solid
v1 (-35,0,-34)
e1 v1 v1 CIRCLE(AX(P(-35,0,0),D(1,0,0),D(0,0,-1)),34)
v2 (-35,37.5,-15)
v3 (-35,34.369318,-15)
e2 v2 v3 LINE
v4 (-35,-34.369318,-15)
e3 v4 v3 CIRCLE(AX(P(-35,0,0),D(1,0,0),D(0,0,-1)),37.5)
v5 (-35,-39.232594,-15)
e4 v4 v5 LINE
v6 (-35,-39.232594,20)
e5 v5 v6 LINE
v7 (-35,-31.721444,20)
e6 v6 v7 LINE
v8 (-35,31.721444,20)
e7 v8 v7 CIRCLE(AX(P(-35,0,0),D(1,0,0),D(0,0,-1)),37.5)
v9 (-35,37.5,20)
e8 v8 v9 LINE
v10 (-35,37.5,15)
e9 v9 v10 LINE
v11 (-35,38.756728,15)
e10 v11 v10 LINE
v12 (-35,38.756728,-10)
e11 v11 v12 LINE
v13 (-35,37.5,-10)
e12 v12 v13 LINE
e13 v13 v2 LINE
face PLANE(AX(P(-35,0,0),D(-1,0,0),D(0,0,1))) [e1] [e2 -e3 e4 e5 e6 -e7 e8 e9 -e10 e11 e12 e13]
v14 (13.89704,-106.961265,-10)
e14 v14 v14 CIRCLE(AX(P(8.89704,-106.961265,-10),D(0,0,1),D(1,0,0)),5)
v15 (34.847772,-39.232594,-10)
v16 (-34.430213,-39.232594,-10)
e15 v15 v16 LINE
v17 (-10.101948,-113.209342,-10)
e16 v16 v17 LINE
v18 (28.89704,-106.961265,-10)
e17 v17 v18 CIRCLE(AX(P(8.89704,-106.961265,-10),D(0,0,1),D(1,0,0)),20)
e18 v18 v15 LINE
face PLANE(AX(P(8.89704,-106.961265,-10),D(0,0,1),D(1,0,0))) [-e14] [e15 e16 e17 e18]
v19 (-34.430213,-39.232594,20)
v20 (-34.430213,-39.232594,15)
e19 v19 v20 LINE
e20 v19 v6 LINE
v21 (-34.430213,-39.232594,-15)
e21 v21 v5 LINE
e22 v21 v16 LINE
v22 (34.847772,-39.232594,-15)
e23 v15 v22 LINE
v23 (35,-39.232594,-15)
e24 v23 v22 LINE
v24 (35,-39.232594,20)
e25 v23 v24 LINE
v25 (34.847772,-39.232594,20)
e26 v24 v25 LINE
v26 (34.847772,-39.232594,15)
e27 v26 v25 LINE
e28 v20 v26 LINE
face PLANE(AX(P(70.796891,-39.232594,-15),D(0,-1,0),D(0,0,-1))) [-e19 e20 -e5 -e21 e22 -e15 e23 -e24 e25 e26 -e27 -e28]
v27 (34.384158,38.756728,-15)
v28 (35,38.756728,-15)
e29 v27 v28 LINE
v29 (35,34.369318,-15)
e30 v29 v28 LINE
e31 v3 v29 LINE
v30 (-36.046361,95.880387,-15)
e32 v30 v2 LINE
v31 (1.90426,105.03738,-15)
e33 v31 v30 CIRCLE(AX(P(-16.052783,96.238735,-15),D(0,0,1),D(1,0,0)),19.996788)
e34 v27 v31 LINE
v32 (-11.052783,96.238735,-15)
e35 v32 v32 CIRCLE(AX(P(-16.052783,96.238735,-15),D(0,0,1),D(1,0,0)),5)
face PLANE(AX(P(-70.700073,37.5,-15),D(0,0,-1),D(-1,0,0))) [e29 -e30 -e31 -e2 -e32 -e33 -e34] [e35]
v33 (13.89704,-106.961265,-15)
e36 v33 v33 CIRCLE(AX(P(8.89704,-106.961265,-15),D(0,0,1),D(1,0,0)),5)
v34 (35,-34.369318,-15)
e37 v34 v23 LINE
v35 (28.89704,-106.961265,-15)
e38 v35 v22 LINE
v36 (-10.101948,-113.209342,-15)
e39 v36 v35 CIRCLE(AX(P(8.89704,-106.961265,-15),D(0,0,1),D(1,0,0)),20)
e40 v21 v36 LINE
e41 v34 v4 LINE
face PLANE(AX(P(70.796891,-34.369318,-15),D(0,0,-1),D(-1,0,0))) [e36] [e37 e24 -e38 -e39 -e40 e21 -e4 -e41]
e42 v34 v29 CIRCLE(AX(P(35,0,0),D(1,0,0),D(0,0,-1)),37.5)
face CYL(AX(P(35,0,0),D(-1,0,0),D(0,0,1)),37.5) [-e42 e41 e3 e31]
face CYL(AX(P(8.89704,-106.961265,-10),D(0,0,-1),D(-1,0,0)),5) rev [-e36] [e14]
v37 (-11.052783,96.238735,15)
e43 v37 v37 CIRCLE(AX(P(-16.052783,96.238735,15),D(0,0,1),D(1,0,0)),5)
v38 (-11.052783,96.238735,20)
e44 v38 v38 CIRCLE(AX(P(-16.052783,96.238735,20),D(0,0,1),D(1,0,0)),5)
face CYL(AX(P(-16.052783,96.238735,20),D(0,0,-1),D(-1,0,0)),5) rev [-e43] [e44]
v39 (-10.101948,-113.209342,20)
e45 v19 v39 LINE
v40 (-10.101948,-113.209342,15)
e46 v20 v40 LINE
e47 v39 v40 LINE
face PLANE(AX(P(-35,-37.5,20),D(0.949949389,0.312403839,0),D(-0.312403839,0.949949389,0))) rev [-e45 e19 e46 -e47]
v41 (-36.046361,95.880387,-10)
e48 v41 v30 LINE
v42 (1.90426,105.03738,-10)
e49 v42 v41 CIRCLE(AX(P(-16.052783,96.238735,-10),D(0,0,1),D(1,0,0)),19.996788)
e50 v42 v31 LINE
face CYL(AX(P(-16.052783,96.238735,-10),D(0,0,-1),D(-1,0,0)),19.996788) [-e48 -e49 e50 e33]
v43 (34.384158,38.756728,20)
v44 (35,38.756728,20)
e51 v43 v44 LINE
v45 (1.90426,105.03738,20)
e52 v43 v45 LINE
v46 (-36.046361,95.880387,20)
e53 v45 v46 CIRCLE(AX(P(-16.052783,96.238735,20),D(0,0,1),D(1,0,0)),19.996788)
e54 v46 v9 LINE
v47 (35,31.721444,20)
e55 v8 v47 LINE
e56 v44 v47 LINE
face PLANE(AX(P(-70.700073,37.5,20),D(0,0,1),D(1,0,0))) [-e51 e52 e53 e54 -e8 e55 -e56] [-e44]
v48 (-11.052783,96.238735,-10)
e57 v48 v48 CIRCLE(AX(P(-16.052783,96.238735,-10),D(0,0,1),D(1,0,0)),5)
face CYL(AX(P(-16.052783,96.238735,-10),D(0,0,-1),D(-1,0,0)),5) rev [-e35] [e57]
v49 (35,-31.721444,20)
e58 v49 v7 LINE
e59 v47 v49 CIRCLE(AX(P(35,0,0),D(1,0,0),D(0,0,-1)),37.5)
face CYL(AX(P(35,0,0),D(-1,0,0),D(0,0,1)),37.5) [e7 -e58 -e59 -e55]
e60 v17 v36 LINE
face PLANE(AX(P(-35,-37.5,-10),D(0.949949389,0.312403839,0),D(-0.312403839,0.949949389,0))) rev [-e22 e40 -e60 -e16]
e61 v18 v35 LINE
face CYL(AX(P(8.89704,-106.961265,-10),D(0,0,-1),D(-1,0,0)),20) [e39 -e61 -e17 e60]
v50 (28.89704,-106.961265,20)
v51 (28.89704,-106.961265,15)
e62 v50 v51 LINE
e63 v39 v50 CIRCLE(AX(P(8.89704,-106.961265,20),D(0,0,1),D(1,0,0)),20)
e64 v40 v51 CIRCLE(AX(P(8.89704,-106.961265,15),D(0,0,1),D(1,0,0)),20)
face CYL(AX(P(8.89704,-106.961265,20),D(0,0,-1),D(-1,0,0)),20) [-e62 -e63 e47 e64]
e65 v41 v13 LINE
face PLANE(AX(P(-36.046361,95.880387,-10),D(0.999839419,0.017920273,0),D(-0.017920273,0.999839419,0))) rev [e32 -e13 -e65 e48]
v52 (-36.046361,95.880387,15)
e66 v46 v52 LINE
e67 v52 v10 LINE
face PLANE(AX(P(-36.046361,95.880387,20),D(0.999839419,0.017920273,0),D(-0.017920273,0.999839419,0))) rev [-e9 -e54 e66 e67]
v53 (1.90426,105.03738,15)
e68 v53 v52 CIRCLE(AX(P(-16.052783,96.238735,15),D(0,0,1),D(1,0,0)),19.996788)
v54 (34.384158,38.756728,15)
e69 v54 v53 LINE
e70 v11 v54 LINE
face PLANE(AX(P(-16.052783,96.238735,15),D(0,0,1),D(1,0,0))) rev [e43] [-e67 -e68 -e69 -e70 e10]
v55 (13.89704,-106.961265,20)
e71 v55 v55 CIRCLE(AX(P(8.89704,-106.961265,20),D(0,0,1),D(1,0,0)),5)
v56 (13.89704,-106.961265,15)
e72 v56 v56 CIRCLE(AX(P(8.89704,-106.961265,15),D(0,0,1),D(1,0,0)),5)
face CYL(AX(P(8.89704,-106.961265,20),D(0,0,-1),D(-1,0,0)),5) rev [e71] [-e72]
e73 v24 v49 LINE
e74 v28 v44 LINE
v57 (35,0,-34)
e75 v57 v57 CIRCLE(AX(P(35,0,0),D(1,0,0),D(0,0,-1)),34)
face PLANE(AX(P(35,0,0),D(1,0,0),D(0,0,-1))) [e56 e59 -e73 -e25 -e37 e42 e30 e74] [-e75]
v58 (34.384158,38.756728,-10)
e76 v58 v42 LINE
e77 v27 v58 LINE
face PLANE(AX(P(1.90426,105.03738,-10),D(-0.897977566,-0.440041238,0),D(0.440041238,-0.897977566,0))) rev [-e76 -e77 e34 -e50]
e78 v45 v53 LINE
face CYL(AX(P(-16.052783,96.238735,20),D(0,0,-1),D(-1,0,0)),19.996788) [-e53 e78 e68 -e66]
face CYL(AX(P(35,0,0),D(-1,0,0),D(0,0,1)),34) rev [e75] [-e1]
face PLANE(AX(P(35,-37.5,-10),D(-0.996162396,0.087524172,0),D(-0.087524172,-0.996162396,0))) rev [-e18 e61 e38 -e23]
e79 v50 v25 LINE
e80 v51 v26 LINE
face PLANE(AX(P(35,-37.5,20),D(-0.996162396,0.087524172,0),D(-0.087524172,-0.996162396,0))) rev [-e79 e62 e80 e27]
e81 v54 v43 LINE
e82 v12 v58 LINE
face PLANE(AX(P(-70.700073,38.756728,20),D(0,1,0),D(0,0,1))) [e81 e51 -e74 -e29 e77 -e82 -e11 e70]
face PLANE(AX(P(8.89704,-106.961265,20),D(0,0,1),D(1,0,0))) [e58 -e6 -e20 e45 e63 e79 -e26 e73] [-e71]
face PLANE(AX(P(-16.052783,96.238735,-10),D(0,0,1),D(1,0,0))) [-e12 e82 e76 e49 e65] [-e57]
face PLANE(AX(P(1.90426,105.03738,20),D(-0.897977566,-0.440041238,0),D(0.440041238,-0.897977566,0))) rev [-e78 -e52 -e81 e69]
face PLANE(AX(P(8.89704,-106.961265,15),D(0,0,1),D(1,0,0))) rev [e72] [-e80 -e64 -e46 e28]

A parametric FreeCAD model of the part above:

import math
import FreeCAD as App
import Part
import Sketcher

V = App.Vector

doc = App.newDocument("Part")
body = doc.addObject("PartDesign::Body", "Body")

# Sketch on YZ plane
sketch1 = body.newObject("Sketcher::SketchObject", "Sketch")
sketch1.AttachmentSupport = (doc.getObject("YZ_Plane"), [""])
sketch1.MapMode = "FlatFace"
sketch1.addGeometry(Part.Circle(V(0, 0, 0), V(0, 0, 1), 38), False)
sketch1.addGeometry(Part.Circle(V(0, 0, 0), V(0, 0, 1), 34), False)
sketch1.addConstraint(Sketcher.Constraint("Coincident", 0, 3, -1, 1))
sketch1.addConstraint(Sketcher.Constraint("Coincident", 1, 3, -1, 1))
sketch1.addConstraint(Sketcher.Constraint("Diameter", 0, 75.0))
sketch1.addConstraint(Sketcher.Constraint("Diameter", 1, 68.0))
pad1 = body.newObject("PartDesign::Pad", "Pad")
pad1.Profile = sketch1
pad1.Length = 70
pad1.Midplane = True
body2 = doc.addObject("PartDesign::Body", "Body001")

# Sketch on XY plane
sketch2 = body2.newObject("Sketcher::SketchObject", "Sketch001")
sketch2.AttachmentSupport = (doc.getObject("XY_Plane001"), [""])
sketch2.MapMode = "FlatFace"
sketch2.AttachmentOffset = App.Placement(V(0, 0, 15), App.Rotation())
sketch2.addGeometry(Part.LineSegment(V(-36, 96, 0), V(-35, 38, 0)), False)
sketch2.addGeometry(Part.LineSegment(V(-35, 38, 0), V(35, 38, 0)), False)
sketch2.addGeometry(Part.LineSegment(V(35, 38, 0), V(2, 105, 0)), False)
sketch2.addGeometry(Part.ArcOfCircle(Part.Circle(V(-16, 96, 0), V(0, 0, 1), 20), math.radians(26), math.radians(181)), False)
sketch2.addGeometry(Part.Circle(V(-16, 96, 0), V(0, 0, 1), 5), False)
sketch2.addConstraint(Sketcher.Constraint("Coincident", 0, 2, 1, 1))
sketch2.addConstraint(Sketcher.Constraint("Coincident", 1, 2, 2, 1))
sketch2.addConstraint(Sketcher.Constraint("Coincident", 2, 2, 3, 1))
sketch2.addConstraint(Sketcher.Constraint("Tangent", 3, 2, 0, 1))
sketch2.addConstraint(Sketcher.Constraint("Horizontal", 1))
sketch2.addConstraint(Sketcher.Constraint("Coincident", 4, 3, 3, 3))
sketch2.addConstraint(Sketcher.Constraint("Diameter", 4, 10.0))
sketch2.addConstraint(Sketcher.Constraint("DistanceX", 1, 1, 1, 2, 70.0))
sketch2.addConstraint(Sketcher.Constraint("DistanceX", 0, 2, -1, 1, 35.0))
sketch2.addConstraint(Sketcher.Constraint("DistanceY", -1, 1, 0, 2, 37.5))
sketch2.addConstraint(Sketcher.Constraint("Radius", 3, 19.996788))
sketch2.addConstraint(Sketcher.Constraint("DistanceX", -1, 1, 2, 2, 1.90426))
sketch2.addConstraint(Sketcher.Constraint("DistanceY", -1, 1, 2, 2, 105.03738))
sketch2.addConstraint(Sketcher.Constraint("DistanceX", 3, 2, -1, 1, 36.046361))
pad2 = body2.newObject("PartDesign::Pad", "Pad001")
pad2.Profile = sketch2
pad2.Length = 5
body3 = doc.addObject("PartDesign::Body", "Body002")

# Sketch on XY plane
sketch3 = body3.newObject("Sketcher::SketchObject", "Sketch002")
sketch3.AttachmentSupport = (doc.getObject("XY_Plane002"), [""])
sketch3.MapMode = "FlatFace"
sketch3.AttachmentOffset = App.Placement(V(0, 0, 15), App.Rotation())
sketch3.addGeometry(Part.LineSegment(V(35, -38, 0), V(-35, -38, 0)), False)
sketch3.addGeometry(Part.LineSegment(V(-35, -38, 0), V(-10, -113, 0)), False)
sketch3.addGeometry(Part.ArcOfCircle(Part.Circle(V(9, -107, 0), V(0, 0, 1), 20), math.radians(-162), math.radians(0)), False)
sketch3.addGeometry(Part.LineSegment(V(29, -107, 0), V(35, -38, 0)), False)
sketch3.addGeometry(Part.Circle(V(9, -107, 0), V(0, 0, 1), 5), False)
sketch3.addConstraint(Sketcher.Constraint("Coincident", 0, 2, 1, 1))
sketch3.addConstraint(Sketcher.Constraint("Tangent", 1, 2, 2, 1))
sketch3.addConstraint(Sketcher.Constraint("Coincident", 2, 2, 3, 1))
sketch3.addConstraint(Sketcher.Constraint("Coincident", 3, 2, 0, 1))
sketch3.addConstraint(Sketcher.Constraint("Horizontal", 0))
sketch3.addConstraint(Sketcher.Constraint("Coincident", 4, 3, 2, 3))
sketch3.addConstraint(Sketcher.Constraint("Horizontal", 4, 3, 2, 2))
sketch3.addConstraint(Sketcher.Constraint("Diameter", 4, 10.0))
sketch3.addConstraint(Sketcher.Constraint("Radius", 2, 20.0))
sketch3.addConstraint(Sketcher.Constraint("DistanceX", 0, 2, 0, 1, 70.0))
sketch3.addConstraint(Sketcher.Constraint("DistanceX", 0, 2, -1, 1, 35.0))
sketch3.addConstraint(Sketcher.Constraint("DistanceY", 0, 2, -1, 1, 37.5))
sketch3.addConstraint(Sketcher.Constraint("Distance", 1, 79.69829))
sketch3.addConstraint(Sketcher.Constraint("DistanceX", -1, 1, 2, 3, 8.89704))
pad3 = body3.newObject("PartDesign::Pad", "Pad002")
pad3.Profile = sketch3
pad3.Length = 5
body4 = doc.addObject("PartDesign::Body", "Body003")

# Sketch on XY plane
sketch4 = body4.newObject("Sketcher::SketchObject", "Sketch003")
sketch4.AttachmentSupport = (doc.getObject("XY_Plane003"), [""])
sketch4.MapMode = "FlatFace"
sketch4.AttachmentOffset = App.Placement(V(0, 0, -15), App.Rotation())
sketch4.addGeometry(Part.LineSegment(V(-36, 96, 0), V(-35, 38, 0)), False)
sketch4.addGeometry(Part.LineSegment(V(-35, 38, 0), V(35, 38, 0)), False)
sketch4.addGeometry(Part.LineSegment(V(35, 38, 0), V(2, 105, 0)), False)
sketch4.addGeometry(Part.ArcOfCircle(Part.Circle(V(-16, 96, 0), V(0, 0, 1), 20), math.radians(26), math.radians(181)), False)
sketch4.addGeometry(Part.Circle(V(-16, 96, 0), V(0, 0, 1), 5), False)
sketch4.addConstraint(Sketcher.Constraint("Coincident", 0, 2, 1, 1))
sketch4.addConstraint(Sketcher.Constraint("Coincident", 1, 2, 2, 1))
sketch4.addConstraint(Sketcher.Constraint("Coincident", 2, 2, 3, 1))
sketch4.addConstraint(Sketcher.Constraint("Tangent", 3, 2, 0, 1))
sketch4.addConstraint(Sketcher.Constraint("Horizontal", 1))
sketch4.addConstraint(Sketcher.Constraint("Coincident", 4, 3, 3, 3))
sketch4.addConstraint(Sketcher.Constraint("Diameter", 4, 10.0))
sketch4.addConstraint(Sketcher.Constraint("DistanceX", 1, 1, 1, 2, 70.0))
sketch4.addConstraint(Sketcher.Constraint("DistanceX", 0, 2, -1, 1, 35.0))
sketch4.addConstraint(Sketcher.Constraint("DistanceY", -1, 1, 0, 2, 37.5))
sketch4.addConstraint(Sketcher.Constraint("Radius", 3, 19.996788))
sketch4.addConstraint(Sketcher.Constraint("DistanceX", -1, 1, 2, 2, 1.90426))
sketch4.addConstraint(Sketcher.Constraint("DistanceY", -1, 1, 2, 2, 105.03738))
sketch4.addConstraint(Sketcher.Constraint("DistanceX", 3, 2, -1, 1, 36.046361))
pad4 = body4.newObject("PartDesign::Pad", "Pad003")
pad4.Profile = sketch4
pad4.Length = 5
body5 = doc.addObject("PartDesign::Body", "Body004")

# Sketch on XY plane
sketch5 = body5.newObject("Sketcher::SketchObject", "Sketch004")
sketch5.AttachmentSupport = (doc.getObject("XY_Plane004"), [""])
sketch5.MapMode = "FlatFace"
sketch5.AttachmentOffset = App.Placement(V(0, 0, -15), App.Rotation())
sketch5.addGeometry(Part.LineSegment(V(35, -38, 0), V(-35, -38, 0)), False)
sketch5.addGeometry(Part.LineSegment(V(-35, -38, 0), V(-10, -113, 0)), False)
sketch5.addGeometry(Part.ArcOfCircle(Part.Circle(V(9, -107, 0), V(0, 0, 1), 20), math.radians(-162), math.radians(0)), False)
sketch5.addGeometry(Part.LineSegment(V(29, -107, 0), V(35, -38, 0)), False)
sketch5.addGeometry(Part.Circle(V(9, -107, 0), V(0, 0, 1), 5), False)
sketch5.addConstraint(Sketcher.Constraint("Coincident", 0, 2, 1, 1))
sketch5.addConstraint(Sketcher.Constraint("Tangent", 1, 2, 2, 1))
sketch5.addConstraint(Sketcher.Constraint("Coincident", 2, 2, 3, 1))
sketch5.addConstraint(Sketcher.Constraint("Coincident", 3, 2, 0, 1))
sketch5.addConstraint(Sketcher.Constraint("Horizontal", 0))
sketch5.addConstraint(Sketcher.Constraint("Coincident", 4, 3, 2, 3))
sketch5.addConstraint(Sketcher.Constraint("Horizontal", 4, 3, 2, 2))
sketch5.addConstraint(Sketcher.Constraint("Diameter", 4, 10.0))
sketch5.addConstraint(Sketcher.Constraint("Radius", 2, 20.0))
sketch5.addConstraint(Sketcher.Constraint("DistanceX", 0, 2, 0, 1, 70.0))
sketch5.addConstraint(Sketcher.Constraint("DistanceX", 0, 2, -1, 1, 35.0))
sketch5.addConstraint(Sketcher.Constraint("DistanceY", 0, 2, -1, 1, 37.5))
sketch5.addConstraint(Sketcher.Constraint("Distance", 1, 79.69829))
sketch5.addConstraint(Sketcher.Constraint("DistanceX", -1, 1, 2, 3, 8.89704))
pad5 = body5.newObject("PartDesign::Pad", "Pad004")
pad5.Profile = sketch5
pad5.Length = 5
body.AllowCompound = True
doc.recompute()

boolean = body.newObject("PartDesign::Boolean", "Boolean")
boolean.Type = "Fuse"
boolean.addObjects([body2])
doc.recompute()

boolean2 = body.newObject("PartDesign::Boolean", "Boolean001")
boolean2.Type = "Fuse"
boolean2.addObjects([body4])

# Sketch on YZ plane
sketch6 = body.newObject("Sketcher::SketchObject", "Sketch005")
sketch6.AttachmentSupport = (doc.getObject("YZ_Plane"), [""])
sketch6.MapMode = "FlatFace"
sketch6.AttachmentOffset = App.Placement(V(0, 0, 35), App.Rotation())
sketch6.addGeometry(Part.ArcOfCircle(Part.Circle(V(0, 0, 0), V(0, 0, 1), 37.5), math.radians(-24), math.radians(32)), False)
sketch6.addGeometry(Part.LineSegment(V(34.4, -15, 0), V(38.8, -15, 0)), False)
sketch6.addGeometry(Part.LineSegment(V(38.8, -15, 0), V(38.8, 20, 0)), False)
sketch6.addGeometry(Part.LineSegment(V(38.8, 20, 0), V(31.7, 20, 0)), False)
sketch6.addConstraint(Sketcher.Constraint("Coincident", 0, 1, 1, 1))
sketch6.addConstraint(Sketcher.Constraint("Coincident", 1, 2, 2, 1))
sketch6.addConstraint(Sketcher.Constraint("Coincident", 2, 2, 3, 1))
sketch6.addConstraint(Sketcher.Constraint("Coincident", 3, 2, 0, 2))
sketch6.addConstraint(Sketcher.Constraint("Horizontal", 1))
sketch6.addConstraint(Sketcher.Constraint("Vertical", 2))
sketch6.addConstraint(Sketcher.Constraint("Horizontal", 3))
sketch6.addConstraint(Sketcher.Constraint("Coincident", 0, 3, -1, 1))
sketch6.addConstraint(Sketcher.Constraint("Radius", 0, 37.5))
sketch6.addConstraint(Sketcher.Constraint("DistanceY", 2, 1, 2, 2, 35.0))
sketch6.addConstraint(Sketcher.Constraint("DistanceY", 0, 1, -1, 1, 15.0))
sketch6.addConstraint(Sketcher.Constraint("DistanceX", 1, 1, 1, 2, 4.38741))
pad6 = body.newObject("PartDesign::Pad", "Pad005")
pad6.Profile = sketch6
pad6.Length = 70
pad6.Reversed = True
doc.recompute()

boolean3 = body.newObject("PartDesign::Boolean", "Boolean002")
boolean3.Type = "Fuse"
boolean3.addObjects([body3])
doc.recompute()

boolean4 = body.newObject("PartDesign::Boolean", "Boolean003")
boolean4.Type = "Fuse"
boolean4.addObjects([body5])

# Sketch on YZ plane
sketch7 = body.newObject("Sketcher::SketchObject", "Sketch006")
sketch7.AttachmentSupport = (doc.getObject("YZ_Plane"), [""])
sketch7.MapMode = "FlatFace"
sketch7.AttachmentOffset = App.Placement(V(0, 0, 35), App.Rotation())
sketch7.addGeometry(Part.LineSegment(V(-39.2, -15, 0), V(-39.2, 20, 0)), False)
sketch7.addGeometry(Part.LineSegment(V(-39.2, 20, 0), V(-31.7, 20, 0)), False)
sketch7.addGeometry(Part.ArcOfCircle(Part.Circle(V(0, 0, 0), V(0, 0, 1), 37.5), math.radians(148), math.radians(204)), False)
sketch7.addGeometry(Part.LineSegment(V(-34.4, -15, 0), V(-39.2, -15, 0)), False)
sketch7.addConstraint(Sketcher.Constraint("Coincident", 0, 2, 1, 1))
sketch7.addConstraint(Sketcher.Constraint("Coincident", 1, 2, 2, 1))
sketch7.addConstraint(Sketcher.Constraint("Coincident", 2, 2, 3, 1))
sketch7.addConstraint(Sketcher.Constraint("Coincident", 3, 2, 0, 1))
sketch7.addConstraint(Sketcher.Constraint("Vertical", 0))
sketch7.addConstraint(Sketcher.Constraint("Horizontal", 1))
sketch7.addConstraint(Sketcher.Constraint("Horizontal", 3))
sketch7.addConstraint(Sketcher.Constraint("Coincident", 2, 3, -1, 1))
sketch7.addConstraint(Sketcher.Constraint("Radius", 2, 37.5))
sketch7.addConstraint(Sketcher.Constraint("DistanceY", 0, 1, 0, 2, 35.0))
sketch7.addConstraint(Sketcher.Constraint("DistanceY", -1, 1, 0, 2, 20.0))
sketch7.addConstraint(Sketcher.Constraint("DistanceX", 1, 1, 1, 2, 7.51115))
pad7 = body.newObject("PartDesign::Pad", "Pad006")
pad7.Profile = sketch7
pad7.Length = 70
pad7.Reversed = True

doc.recompute()
